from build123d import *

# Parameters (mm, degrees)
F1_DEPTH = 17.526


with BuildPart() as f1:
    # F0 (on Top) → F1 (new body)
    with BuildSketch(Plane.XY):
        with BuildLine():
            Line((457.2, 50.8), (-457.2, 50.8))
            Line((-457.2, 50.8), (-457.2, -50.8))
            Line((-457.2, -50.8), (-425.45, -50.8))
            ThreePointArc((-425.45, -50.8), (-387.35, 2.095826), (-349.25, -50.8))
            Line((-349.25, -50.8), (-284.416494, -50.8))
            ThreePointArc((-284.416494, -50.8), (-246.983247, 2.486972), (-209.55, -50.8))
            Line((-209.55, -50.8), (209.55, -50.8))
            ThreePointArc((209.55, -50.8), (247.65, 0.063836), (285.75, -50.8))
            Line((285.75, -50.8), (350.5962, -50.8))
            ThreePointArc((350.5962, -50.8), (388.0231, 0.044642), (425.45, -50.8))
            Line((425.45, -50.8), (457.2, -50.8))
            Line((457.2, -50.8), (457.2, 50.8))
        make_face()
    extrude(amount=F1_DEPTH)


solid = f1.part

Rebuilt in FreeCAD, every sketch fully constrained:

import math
import FreeCAD as App
import Part
import Sketcher
Q = App.Units.Quantity

doc = App.newDocument("Part")
body = doc.addObject("PartDesign::Body", "Body")

# Sketch on XY plane
sketch1 = doc.addObject("Sketcher::SketchObject", "Sketch")
body.addObject(sketch1)
sketch1.AttachmentSupport = (doc.XY_Plane, [""])
sketch1.MapMode = "FlatFace"
sketch1.addGeometry(Part.LineSegment(App.Vector(457.2, 50.8, 0), App.Vector(-457.2, 50.8, 0)), False)
sketch1.addGeometry(Part.LineSegment(App.Vector(-457.2, 50.8, 0), App.Vector(-457.2, -50.8, 0)), False)
sketch1.addGeometry(Part.LineSegment(App.Vector(-457.2, -50.8, 0), App.Vector(-425.45, -50.8, 0)), False)
sketch1.addGeometry(Part.ArcOfCircle(Part.Circle(App.Vector(-387.35, -38.073491, 0), App.Vector(0, 0, 1), 40.169317), math.radians(-18.47082), math.radians(198.47082)), False)
sketch1.addGeometry(Part.LineSegment(App.Vector(-349.25, -50.8, 0), App.Vector(-284.416494, -50.8, 0)), False)
sketch1.addGeometry(Part.ArcOfCircle(Part.Circle(App.Vector(-246.983247, -37.304643, 0), App.Vector(0, 0, 1), 39.791615), math.radians(-19.825143), math.radians(199.825143)), False)
sketch1.addGeometry(Part.LineSegment(App.Vector(-209.55, -50.8, 0), App.Vector(209.55, -50.8, 0)), False)
sketch1.addGeometry(Part.ArcOfCircle(Part.Circle(App.Vector(247.65, -39.637651, 0), App.Vector(0, 0, 1), 39.701487), math.radians(-16.329268), math.radians(196.329268)), False)
sketch1.addGeometry(Part.LineSegment(App.Vector(285.75, -50.8, 0), App.Vector(350.5962, -50.8, 0)), False)
sketch1.addGeometry(Part.ArcOfCircle(Part.Circle(App.Vector(388.0231, -39.152708, 0), App.Vector(0, 0, 1), 39.19735), math.radians(-17.286198), math.radians(197.286198)), False)
sketch1.addGeometry(Part.LineSegment(App.Vector(425.45, -50.8, 0), App.Vector(457.2, -50.8, 0)), False)
sketch1.addGeometry(Part.LineSegment(App.Vector(457.2, -50.8, 0), App.Vector(457.2, 50.8, 0)), False)
sketch1.addConstraint(Sketcher.Constraint("Coincident", 0, 2, 1, 1))
sketch1.addConstraint(Sketcher.Constraint("Coincident", 1, 2, 2, 1))
sketch1.addConstraint(Sketcher.Constraint("Coincident", 2, 2, 3, 2))
sketch1.addConstraint(Sketcher.Constraint("Coincident", 3, 1, 4, 1))
sketch1.addConstraint(Sketcher.Constraint("Coincident", 4, 2, 5, 2))
sketch1.addConstraint(Sketcher.Constraint("Coincident", 5, 1, 6, 1))
sketch1.addConstraint(Sketcher.Constraint("Coincident", 6, 2, 7, 2))
sketch1.addConstraint(Sketcher.Constraint("Coincident", 7, 1, 8, 1))
sketch1.addConstraint(Sketcher.Constraint("Coincident", 8, 2, 9, 2))
sketch1.addConstraint(Sketcher.Constraint("Coincident", 9, 1, 10, 1))
sketch1.addConstraint(Sketcher.Constraint("Coincident", 10, 2, 11, 1))
sketch1.addConstraint(Sketcher.Constraint("Coincident", 11, 2, 0, 1))
sketch1.addConstraint(Sketcher.Constraint("Horizontal", 0))
sketch1.addConstraint(Sketcher.Constraint("Vertical", 1))
sketch1.addConstraint(Sketcher.Constraint("Horizontal", 2))
sketch1.addConstraint(Sketcher.Constraint("Horizontal", 4))
sketch1.addConstraint(Sketcher.Constraint("Horizontal", 6))
sketch1.addConstraint(Sketcher.Constraint("Horizontal", 8))
sketch1.addConstraint(Sketcher.Constraint("Horizontal", 10))
sketch1.addConstraint(Sketcher.Constraint("Vertical", 11))
sketch1.addConstraint(Sketcher.Constraint("Symmetric", 0, 2, 10, 2, -1, 1))
sketch1.addConstraint(Sketcher.Constraint("Symmetric", 2, 2, 9, 1, -2))
sketch1.addConstraint(Sketcher.Constraint("Horizontal", 2, 2, 3, 1))
sketch1.addConstraint(Sketcher.Constraint("Horizontal", 4, 2, 5, 1))
sketch1.addConstraint(Sketcher.Constraint("Horizontal", 6, 2, 7, 1))
sketch1.addConstraint(Sketcher.Constraint("DistanceX", 0, 2, 0, 1, Q("36 in")))
sketch1.addConstraint(Sketcher.Constraint("DistanceY", 1, 2, 1, 1, Q("4 in")))
sketch1.addConstraint(Sketcher.Constraint("DistanceX", 6, 1, 6, 2, Q("16.5 in")))
sketch1.addConstraint(Sketcher.Constraint("DistanceX", 3, 3, 7, 3, Q("25 in")))
sketch1.addConstraint(Sketcher.Constraint("DistanceX", 2, 2, 3, 1, Q("3 in")))
sketch1.addConstraint(Sketcher.Constraint("DistanceX", 3, 3, 5, 1, Q("7 in")))
sketch1.addConstraint(Sketcher.Constraint("DistanceX", 7, 3, 9, 1, Q("7 in")))
sketch1.addConstraint(Sketcher.Constraint("DistanceX", 8, 1, 8, 2, Q("2.553 in")))
sketch1.addConstraint(Sketcher.Constraint("Radius", 9, 39.19735))
sketch1.addConstraint(Sketcher.Constraint("Radius", 3, 40.169317))
sketch1.addConstraint(Sketcher.Constraint("Radius", 5, 39.791615))
sketch1.addConstraint(Sketcher.Constraint("Radius", 7, 39.701487))
sketch1.addConstraint(Sketcher.Constraint("DistanceX", 4, 1, 4, 2, 64.833506))
pad1 = doc.addObject("PartDesign::Pad", "Pad")
body.addObject(pad1)
pad1.Profile = sketch1
pad1.Length = Q("0.69 in")

doc.recompute()
